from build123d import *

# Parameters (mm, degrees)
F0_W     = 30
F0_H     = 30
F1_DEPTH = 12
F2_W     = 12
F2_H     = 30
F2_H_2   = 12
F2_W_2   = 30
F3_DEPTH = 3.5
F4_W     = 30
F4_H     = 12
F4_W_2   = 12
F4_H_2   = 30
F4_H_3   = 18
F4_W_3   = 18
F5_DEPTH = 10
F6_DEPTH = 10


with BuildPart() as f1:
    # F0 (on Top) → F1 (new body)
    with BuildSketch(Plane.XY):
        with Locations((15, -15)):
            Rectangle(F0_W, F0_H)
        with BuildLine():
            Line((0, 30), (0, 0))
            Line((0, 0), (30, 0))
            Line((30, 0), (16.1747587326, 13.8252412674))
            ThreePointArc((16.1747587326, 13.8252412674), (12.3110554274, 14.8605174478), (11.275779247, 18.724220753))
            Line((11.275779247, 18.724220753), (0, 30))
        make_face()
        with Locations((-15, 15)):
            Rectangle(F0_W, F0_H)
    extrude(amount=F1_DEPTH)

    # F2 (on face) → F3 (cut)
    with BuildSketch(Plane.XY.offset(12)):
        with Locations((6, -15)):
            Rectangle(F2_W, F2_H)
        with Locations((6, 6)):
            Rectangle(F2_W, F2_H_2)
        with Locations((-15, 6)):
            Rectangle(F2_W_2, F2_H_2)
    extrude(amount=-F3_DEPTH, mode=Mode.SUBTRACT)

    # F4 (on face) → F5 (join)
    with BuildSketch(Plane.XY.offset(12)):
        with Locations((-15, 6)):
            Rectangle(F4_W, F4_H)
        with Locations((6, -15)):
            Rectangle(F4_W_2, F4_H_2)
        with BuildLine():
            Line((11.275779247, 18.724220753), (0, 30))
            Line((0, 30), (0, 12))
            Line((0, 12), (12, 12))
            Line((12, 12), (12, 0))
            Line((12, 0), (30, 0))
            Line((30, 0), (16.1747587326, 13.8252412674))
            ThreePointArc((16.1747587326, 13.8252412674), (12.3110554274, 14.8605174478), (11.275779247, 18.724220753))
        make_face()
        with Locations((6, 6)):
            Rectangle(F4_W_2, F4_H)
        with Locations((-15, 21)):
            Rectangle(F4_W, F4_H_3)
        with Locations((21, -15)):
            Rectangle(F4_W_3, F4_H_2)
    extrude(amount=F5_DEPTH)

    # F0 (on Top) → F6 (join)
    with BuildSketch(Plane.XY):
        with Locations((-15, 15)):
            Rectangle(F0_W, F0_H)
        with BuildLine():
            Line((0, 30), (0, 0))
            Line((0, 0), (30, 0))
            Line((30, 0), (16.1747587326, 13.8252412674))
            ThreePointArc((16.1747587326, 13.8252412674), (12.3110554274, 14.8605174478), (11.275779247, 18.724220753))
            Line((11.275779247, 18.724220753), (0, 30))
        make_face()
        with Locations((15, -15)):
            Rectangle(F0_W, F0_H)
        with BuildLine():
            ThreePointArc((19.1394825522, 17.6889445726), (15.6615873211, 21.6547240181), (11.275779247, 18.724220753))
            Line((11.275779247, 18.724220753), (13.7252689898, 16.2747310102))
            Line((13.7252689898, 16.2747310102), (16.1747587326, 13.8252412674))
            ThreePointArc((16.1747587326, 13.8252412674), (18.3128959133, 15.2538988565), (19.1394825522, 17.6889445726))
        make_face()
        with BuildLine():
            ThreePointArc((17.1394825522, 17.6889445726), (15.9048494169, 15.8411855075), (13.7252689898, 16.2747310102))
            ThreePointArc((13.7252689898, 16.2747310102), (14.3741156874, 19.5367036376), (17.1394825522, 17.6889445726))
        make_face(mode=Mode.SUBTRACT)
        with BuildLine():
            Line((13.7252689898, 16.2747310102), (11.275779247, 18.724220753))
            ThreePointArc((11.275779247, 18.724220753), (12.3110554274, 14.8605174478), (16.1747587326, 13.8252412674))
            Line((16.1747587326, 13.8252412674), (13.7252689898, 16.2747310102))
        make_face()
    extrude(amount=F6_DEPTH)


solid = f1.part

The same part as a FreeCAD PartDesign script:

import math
import FreeCAD as App
import Part
import Sketcher

V = App.Vector
Q = App.Units.Quantity


def add_polygon(sketch, points):
    """Adds a closed chain of lines whose ends are joined by coincident constraints."""
    first, n = sketch.GeometryCount, len(points)
    for a, b in zip(points, points[1:] + points[:1]):
        sketch.addGeometry(Part.LineSegment(App.Vector(*a, 0), App.Vector(*b, 0)), False)
    for i in range(n):
        sketch.addConstraint(Sketcher.Constraint("Coincident", first + i, 2, first + (i + 1) % n, 1))

doc = App.newDocument("Part")
params = doc.addObject("Spreadsheet::Sheet", "Params")
for row, (alias, value) in enumerate([
    ("sketch1_radius", "4 mm"),
    ("sketch1_width", "30 mm"),
    ("pad1_length", "12 mm"),
    ("sketch2_width", "12 mm"),
    ("sketch2_width2", "42 mm"),
    ("pocket1_length", "3.5 mm"),
    ("sketch3_radius", "4 mm"),
    ("sketch3_width", "30 mm"),
    ("pad2_length", "10 mm"),
    ("sketch4_radius", "4 mm"),
    ("sketch4_radius2", "2 mm"),
    ("sketch4_width", "30 mm"),
    ("pad3_length", "10 mm"),
], start=1):
    params.set(f"A{row}", alias)
    params.set(f"B{row}", "=" + value)
    params.setAlias(f"B{row}", alias)

body = doc.addObject("PartDesign::Body", "Body")

# Sketch on XY plane
sketch1 = doc.addObject("Sketcher::SketchObject", "Sketch")
body.addObject(sketch1)
sketch1.AttachmentSupport = (doc.XY_Plane, [""])
sketch1.MapMode = "FlatFace"
sketch1.addGeometry([
    Part.LineSegment(V(0, -30, 0), V(30, -30, 0)),  # 0
    Part.LineSegment(V(30, -30, 0), V(30, 0, 0)),  # 1
    Part.LineSegment(V(30, 0, 0), V(16.2, 13.8, 0)),  # 2
    Part.ArcOfCircle(Part.Circle(V(15.1, 17.7, 0), V(0, 0, 1), 4), math.radians(165), math.radians(285)),  # 3
    Part.LineSegment(V(11.3, 18.7, 0), V(0, 30, 0)),  # 4
    Part.LineSegment(V(0, 30, 0), V(-30, 30, 0)),  # 5
    Part.LineSegment(V(-30, 30, 0), V(-30, 0, 0)),  # 6
    Part.LineSegment(V(-30, 0, 0), V(0, 0, 0)),  # 7
    Part.LineSegment(V(0, 0, 0), V(0, -30, 0)),  # 8
], False)
sketch1.addConstraint([
    Sketcher.Constraint("Coincident", 0, 2, 1, 1),
    Sketcher.Constraint("Coincident", 1, 2, 2, 1),
    Sketcher.Constraint("Coincident", 2, 2, 3, 2),
    Sketcher.Constraint("Coincident", 3, 1, 4, 1),
    Sketcher.Constraint("Coincident", 4, 2, 5, 1),
    Sketcher.Constraint("Coincident", 5, 2, 6, 1),
    Sketcher.Constraint("Coincident", 6, 2, 7, 1),
    Sketcher.Constraint("Coincident", 7, 2, 8, 1),
    Sketcher.Constraint("Coincident", 8, 2, 0, 1),
    Sketcher.Constraint("Horizontal", 0),
    Sketcher.Constraint("Vertical", 1),
    Sketcher.Constraint("Horizontal", 5),
    Sketcher.Constraint("Vertical", 6),
    Sketcher.Constraint("Horizontal", 7),
    Sketcher.Constraint("Vertical", 8),
    Sketcher.Constraint("Coincident", 7, 2, -1, 1),
    Sketcher.Constraint("Symmetric", 0, 2, 5, 2, -1, 1),
    Sketcher.Constraint("PointOnObject", 1, 2, -1),
    Sketcher.Constraint("PointOnObject", 4, 2, -2),
    Sketcher.Constraint("Parallel", 2, 4),
    Sketcher.Constraint("Equal", 7, 1),
    Sketcher.Constraint("Radius", 3, 4.0),
    Sketcher.Constraint("DistanceX", 0, 1, 0, 2, 30.0),
    Sketcher.Constraint("Angle", 2, Q("135 deg")),
    Sketcher.Constraint("Distance", 4, 15.94636),
    Sketcher.Constraint("DistanceX", -1, 1, 2, 2, 16.174759),
])
sketch1.setExpression("Constraints[21]", "Params.sketch1_radius")
sketch1.setExpression("Constraints[22]", "Params.sketch1_width")
pad1 = doc.addObject("PartDesign::Pad", "Pad")
body.addObject(pad1)
pad1.Profile = sketch1
pad1.setExpression("Length", "Params.pad1_length")

# Sketch on XY plane
sketch2 = doc.addObject("Sketcher::SketchObject", "Sketch001")
body.addObject(sketch2)
sketch2.AttachmentSupport = (doc.XY_Plane, [""])
sketch2.MapMode = "FlatFace"
sketch2.AttachmentOffset = App.Placement(V(0, 0, 12), App.Rotation())
add_polygon(sketch2, [(0, -30), (12, -30), (12, 12), (-30, 12), (-30, 0), (0, 0)])  # lines 0-5
sketch2.addConstraint([
    Sketcher.Constraint("Horizontal", 0),
    Sketcher.Constraint("Vertical", 1),
    Sketcher.Constraint("Horizontal", 2),
    Sketcher.Constraint("Vertical", 3),
    Sketcher.Constraint("Horizontal", 4),
    Sketcher.Constraint("Vertical", 5),
    Sketcher.Constraint("Coincident", 4, 2, -1, 1),
    Sketcher.Constraint("Equal", 2, 1),
    Sketcher.Constraint("Equal", 0, 3),
    Sketcher.Constraint("DistanceX", 0, 1, 0, 2, 12.0),
    Sketcher.Constraint("DistanceX", 2, 2, 2, 1, 42.0),
])
sketch2.setExpression("Constraints[15]", "Params.sketch2_width")
sketch2.setExpression("Constraints[16]", "Params.sketch2_width2")
pocket1 = doc.addObject("PartDesign::Pocket", "Pocket")
body.addObject(pocket1)
pocket1.Profile = sketch2
pocket1.setExpression("Length", "Params.pocket1_length")

# Sketch on XY plane
sketch3 = doc.addObject("Sketcher::SketchObject", "Sketch002")
body.addObject(sketch3)
sketch3.AttachmentSupport = (doc.XY_Plane, [""])
sketch3.MapMode = "FlatFace"
sketch3.AttachmentOffset = App.Placement(V(0, 0, 12), App.Rotation())
sketch3.addGeometry([
    Part.LineSegment(V(-30, 0, 0), V(0, 0, 0)),  # 0
    Part.LineSegment(V(0, 0, 0), V(0, -30, 0)),  # 1
    Part.LineSegment(V(0, -30, 0), V(30, -30, 0)),  # 2
    Part.LineSegment(V(30, -30, 0), V(30, 0, 0)),  # 3
    Part.LineSegment(V(30, 0, 0), V(16.2, 13.8, 0)),  # 4
    Part.ArcOfCircle(Part.Circle(V(15.1, 17.7, 0), V(0, 0, 1), 4), math.radians(165), math.radians(285)),  # 5
    Part.LineSegment(V(11.3, 18.7, 0), V(0, 30, 0)),  # 6
    Part.LineSegment(V(0, 30, 0), V(-30, 30, 0)),  # 7
    Part.LineSegment(V(-30, 30, 0), V(-30, 0, 0)),  # 8
], False)
sketch3.addConstraint([
    Sketcher.Constraint("Coincident", 0, 2, 1, 1),
    Sketcher.Constraint("Coincident", 1, 2, 2, 1),
    Sketcher.Constraint("Coincident", 2, 2, 3, 1),
    Sketcher.Constraint("Coincident", 3, 2, 4, 1),
    Sketcher.Constraint("Coincident", 4, 2, 5, 2),
    Sketcher.Constraint("Coincident", 5, 1, 6, 1),
    Sketcher.Constraint("Coincident", 6, 2, 7, 1),
    Sketcher.Constraint("Coincident", 7, 2, 8, 1),
    Sketcher.Constraint("Coincident", 8, 2, 0, 1),
    Sketcher.Constraint("Horizontal", 0),
    Sketcher.Constraint("Vertical", 1),
    Sketcher.Constraint("Horizontal", 2),
    Sketcher.Constraint("Vertical", 3),
    Sketcher.Constraint("Horizontal", 7),
    Sketcher.Constraint("Vertical", 8),
    Sketcher.Constraint("Coincident", 0, 2, -1, 1),
    Sketcher.Constraint("Symmetric", 1, 2, 6, 2, -1, 1),
    Sketcher.Constraint("Symmetric", 3, 2, 8, 2, -1, 1),
    Sketcher.Constraint("Parallel", 4, 6),
    Sketcher.Constraint("Equal", 7, 1),
    Sketcher.Constraint("Radius", 5, 4.0),
    Sketcher.Constraint("DistanceX", 0, 1, 0, 2, 30.0),
    Sketcher.Constraint("Angle", 4, Q("135 deg")),
    Sketcher.Constraint("Distance", 6, 15.94636),
    Sketcher.Constraint("DistanceX", -1, 1, 4, 2, 16.174759),
])
sketch3.setExpression("Constraints[20]", "Params.sketch3_radius")
sketch3.setExpression("Constraints[21]", "Params.sketch3_width")
pad2 = doc.addObject("PartDesign::Pad", "Pad001")
body.addObject(pad2)
pad2.Profile = sketch3
pad2.setExpression("Length", "Params.pad2_length")

# Sketch on XY plane
sketch4 = doc.addObject("Sketcher::SketchObject", "Sketch003")
body.addObject(sketch4)
sketch4.AttachmentSupport = (doc.XY_Plane, [""])
sketch4.MapMode = "FlatFace"
sketch4.addGeometry([
    Part.LineSegment(V(-30, 30, 0), V(-30, 0, 0)),  # 0
    Part.LineSegment(V(-30, 0, 0), V(0, 0, 0)),  # 1
    Part.LineSegment(V(0, 0, 0), V(0, -30, 0)),  # 2
    Part.LineSegment(V(0, -30, 0), V(30, -30, 0)),  # 3
    Part.LineSegment(V(30, -30, 0), V(30, 0, 0)),  # 4
    Part.LineSegment(V(30, 0, 0), V(16.2, 13.8, 0)),  # 5
    Part.ArcOfCircle(Part.Circle(V(15.1, 17.7, 0), V(0, 0, 1), 4), math.radians(-75), math.radians(0)),  # 6
    Part.ArcOfCircle(Part.Circle(V(15.1, 17.7, 0), V(0, 0, 1), 4), math.radians(0), math.radians(165)),  # 7
    Part.LineSegment(V(11.3, 18.7, 0), V(0, 30, 0)),  # 8
    Part.LineSegment(V(0, 30, 0), V(-30, 30, 0)),  # 9
    Part.ArcOfCircle(Part.Circle(V(15.1, 17.7, 0), V(0, 0, 1), 2), math.radians(-135), math.radians(0)),  # 10
    Part.ArcOfCircle(Part.Circle(V(15.1, 17.7, 0), V(0, 0, 1), 2), math.radians(0), math.radians(225)),  # 11
], False)
sketch4.addConstraint([
    Sketcher.Constraint("Coincident", 0, 2, 1, 1),
    Sketcher.Constraint("Coincident", 1, 2, 2, 1),
    Sketcher.Constraint("Coincident", 2, 2, 3, 1),
    Sketcher.Constraint("Coincident", 3, 2, 4, 1),
    Sketcher.Constraint("Coincident", 4, 2, 5, 1),
    Sketcher.Constraint("Coincident", 5, 2, 6, 1),
    Sketcher.Constraint("Tangent", 6, 2, 7, 1),
    Sketcher.Constraint("Coincident", 7, 2, 8, 1),
    Sketcher.Constraint("Coincident", 8, 2, 9, 1),
    Sketcher.Constraint("Coincident", 9, 2, 0, 1),
    Sketcher.Constraint("Tangent", 10, 1, 11, 2),
    Sketcher.Constraint("Coincident", 11, 1, 10, 2),
    Sketcher.Constraint("Vertical", 0),
    Sketcher.Constraint("Horizontal", 1),
    Sketcher.Constraint("Vertical", 2),
    Sketcher.Constraint("Horizontal", 3),
    Sketcher.Constraint("Vertical", 4),
    Sketcher.Constraint("Horizontal", 9),
    Sketcher.Constraint("Coincident", 1, 2, -1, 1),
    Sketcher.Constraint("Coincident", 10, 3, 6, 3),
    Sketcher.Constraint("Equal", 6, 7),
    Sketcher.Constraint("Symmetric", 0, 2, 4, 2, -1, 1),
    Sketcher.Constraint("Symmetric", 2, 2, 8, 2, -1, 1),
    Sketcher.Constraint("Parallel", 5, 8),
    Sketcher.Constraint("Horizontal", 11, 3, 6, 2),
    Sketcher.Constraint("Horizontal", 6, 2, 11, 1),
    Sketcher.Constraint("Equal", 9, 0),
    Sketcher.Constraint("Radius", 6, 4.0),
    Sketcher.Constraint("Radius", 10, 2.0),
    Sketcher.Constraint("DistanceX", 1, 1, 1, 2, 30.0),
    Sketcher.Constraint("Angle", 5, Q("135 deg")),
    Sketcher.Constraint("Distance", 8, 15.94636),
    Sketcher.Constraint("DistanceX", -1, 1, 5, 2, 16.174759),
    Sketcher.Constraint("DistanceX", -1, 1, 10, 1, 13.725269),
])
sketch4.setExpression("Constraints[27]", "Params.sketch4_radius")
sketch4.setExpression("Constraints[28]", "Params.sketch4_radius2")
sketch4.setExpression("Constraints[29]", "Params.sketch4_width")
pad3 = doc.addObject("PartDesign::Pad", "Pad002")
body.addObject(pad3)
pad3.Profile = sketch4
pad3.setExpression("Length", "Params.pad3_length")

doc.recompute()
